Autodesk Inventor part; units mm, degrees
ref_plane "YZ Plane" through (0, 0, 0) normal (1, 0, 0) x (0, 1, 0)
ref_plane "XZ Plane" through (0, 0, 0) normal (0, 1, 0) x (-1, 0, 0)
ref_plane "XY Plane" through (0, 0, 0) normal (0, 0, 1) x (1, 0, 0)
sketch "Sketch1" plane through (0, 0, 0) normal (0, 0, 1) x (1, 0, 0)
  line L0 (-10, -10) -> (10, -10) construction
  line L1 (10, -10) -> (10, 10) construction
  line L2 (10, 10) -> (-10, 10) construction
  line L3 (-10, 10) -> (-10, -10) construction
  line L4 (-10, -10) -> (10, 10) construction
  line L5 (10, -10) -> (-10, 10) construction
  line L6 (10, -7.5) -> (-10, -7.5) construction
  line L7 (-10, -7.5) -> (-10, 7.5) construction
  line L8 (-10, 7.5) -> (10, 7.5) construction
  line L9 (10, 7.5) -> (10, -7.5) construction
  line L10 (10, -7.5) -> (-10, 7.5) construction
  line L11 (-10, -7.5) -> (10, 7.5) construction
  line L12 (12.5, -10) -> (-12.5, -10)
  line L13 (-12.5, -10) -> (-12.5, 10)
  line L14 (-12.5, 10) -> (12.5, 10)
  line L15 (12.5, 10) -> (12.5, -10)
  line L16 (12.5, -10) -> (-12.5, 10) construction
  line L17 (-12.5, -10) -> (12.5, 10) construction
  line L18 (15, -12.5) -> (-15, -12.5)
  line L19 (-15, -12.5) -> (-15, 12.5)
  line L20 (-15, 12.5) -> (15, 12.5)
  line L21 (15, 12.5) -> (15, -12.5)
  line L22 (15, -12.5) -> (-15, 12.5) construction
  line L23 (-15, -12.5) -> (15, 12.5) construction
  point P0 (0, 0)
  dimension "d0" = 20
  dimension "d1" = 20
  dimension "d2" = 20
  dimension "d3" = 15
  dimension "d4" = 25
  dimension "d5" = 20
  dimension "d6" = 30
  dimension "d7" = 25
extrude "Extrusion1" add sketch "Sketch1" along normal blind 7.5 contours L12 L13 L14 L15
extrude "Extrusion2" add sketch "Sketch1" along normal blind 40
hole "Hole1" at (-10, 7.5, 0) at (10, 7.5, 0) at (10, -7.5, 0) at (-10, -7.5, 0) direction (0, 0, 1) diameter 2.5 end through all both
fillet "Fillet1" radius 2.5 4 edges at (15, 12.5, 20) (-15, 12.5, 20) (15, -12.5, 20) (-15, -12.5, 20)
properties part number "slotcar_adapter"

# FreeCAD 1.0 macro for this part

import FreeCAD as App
import Part
import Sketcher


def edges_at(feature, points):
    """Names of the edges that pass closest to the given points."""
    edges = feature.Shape.Edges
    near = lambda p: min(range(len(edges)), key=lambda i: edges[i].distToShape(Part.Vertex(*p))[0])
    return sorted({f"Edge{near(p) + 1}" for p in points})

doc = App.newDocument("Part")
params = doc.addObject("Spreadsheet::Sheet", "Params")
for row, (alias, value) in enumerate([
    ("sketch1_width", "25 mm"),
    ("sketch1_height", "20 mm"),
    ("pad1_length", "7.5 mm"),
    ("sketch2_width", "30 mm"),
    ("sketch2_width2", "25 mm"),
    ("sketch2_height", "20 mm"),
    ("pad2_length", "40 mm"),
    ("sketch3_diameter", "2.5 mm"),
    ("hole_diameter", "2.5 mm"),
    ("fillet_radius", "2.5 mm"),
], start=1):
    params.set(f"A{row}", alias)
    params.set(f"B{row}", "=" + value)
    params.setAlias(f"B{row}", alias)

body = doc.addObject("PartDesign::Body", "Body")

sketch1 = body.newObject("Sketcher::SketchObject", "Sketch")
sketch1.AttachmentSupport = (doc.getObject("XY_Plane"), [""])
sketch1.MapMode = "FlatFace"
sketch1.addGeometry(Part.LineSegment(App.Vector(-12, -10, 0), App.Vector(12, -10, 0)), False)
sketch1.addGeometry(Part.LineSegment(App.Vector(12, -10, 0), App.Vector(12, 10, 0)), False)
sketch1.addGeometry(Part.LineSegment(App.Vector(12, 10, 0), App.Vector(-12, 10, 0)), False)
sketch1.addGeometry(Part.LineSegment(App.Vector(-12, 10, 0), App.Vector(-12, -10, 0)), False)
sketch1.addConstraint(Sketcher.Constraint("Coincident", 0, 2, 1, 1))
sketch1.addConstraint(Sketcher.Constraint("Coincident", 1, 2, 2, 1))
sketch1.addConstraint(Sketcher.Constraint("Coincident", 2, 2, 3, 1))
sketch1.addConstraint(Sketcher.Constraint("Coincident", 3, 2, 0, 1))
sketch1.addConstraint(Sketcher.Constraint("Horizontal", 0))
sketch1.addConstraint(Sketcher.Constraint("Vertical", 1))
sketch1.addConstraint(Sketcher.Constraint("Horizontal", 2))
sketch1.addConstraint(Sketcher.Constraint("Vertical", 3))
sketch1.addConstraint(Sketcher.Constraint("Symmetric", 0, 2, 2, 2, -1, 1))
sketch1.addConstraint(Sketcher.Constraint("DistanceX", 0, 1, 0, 2, 25.0))
sketch1.addConstraint(Sketcher.Constraint("DistanceY", 1, 1, 1, 2, 20.0))
sketch1.setExpression("Constraints[9]", "Params.sketch1_width")
sketch1.setExpression("Constraints[10]", "Params.sketch1_height")
pad1 = body.newObject("PartDesign::Pad", "Pad")
pad1.Profile = sketch1
pad1.setExpression("Length", "Params.pad1_length")

sketch2 = body.newObject("Sketcher::SketchObject", "Sketch001")
sketch2.AttachmentSupport = (doc.getObject("XY_Plane"), [""])
sketch2.MapMode = "FlatFace"
sketch2.addGeometry(Part.LineSegment(App.Vector(-15, -12, 0), App.Vector(15, -12, 0)), False)
sketch2.addGeometry(Part.LineSegment(App.Vector(15, -12, 0), App.Vector(15, 12, 0)), False)
sketch2.addGeometry(Part.LineSegment(App.Vector(15, 12, 0), App.Vector(-15, 12, 0)), False)
sketch2.addGeometry(Part.LineSegment(App.Vector(-15, 12, 0), App.Vector(-15, -12, 0)), False)
sketch2.addGeometry(Part.LineSegment(App.Vector(12, 10, 0), App.Vector(12, -10, 0)), False)
sketch2.addGeometry(Part.LineSegment(App.Vector(12, -10, 0), App.Vector(-12, -10, 0)), False)
sketch2.addGeometry(Part.LineSegment(App.Vector(-12, -10, 0), App.Vector(-12, 10, 0)), False)
sketch2.addGeometry(Part.LineSegment(App.Vector(-12, 10, 0), App.Vector(12, 10, 0)), False)
sketch2.addConstraint(Sketcher.Constraint("Coincident", 0, 2, 1, 1))
sketch2.addConstraint(Sketcher.Constraint("Coincident", 1, 2, 2, 1))
sketch2.addConstraint(Sketcher.Constraint("Coincident", 2, 2, 3, 1))
sketch2.addConstraint(Sketcher.Constraint("Coincident", 3, 2, 0, 1))
sketch2.addConstraint(Sketcher.Constraint("Coincident", 4, 2, 5, 1))
sketch2.addConstraint(Sketcher.Constraint("Coincident", 5, 2, 6, 1))
sketch2.addConstraint(Sketcher.Constraint("Coincident", 6, 2, 7, 1))
sketch2.addConstraint(Sketcher.Constraint("Coincident", 7, 2, 4, 1))
sketch2.addConstraint(Sketcher.Constraint("Horizontal", 0))
sketch2.addConstraint(Sketcher.Constraint("Vertical", 1))
sketch2.addConstraint(Sketcher.Constraint("Horizontal", 2))
sketch2.addConstraint(Sketcher.Constraint("Vertical", 3))
sketch2.addConstraint(Sketcher.Constraint("Vertical", 4))
sketch2.addConstraint(Sketcher.Constraint("Horizontal", 5))
sketch2.addConstraint(Sketcher.Constraint("Vertical", 6))
sketch2.addConstraint(Sketcher.Constraint("Horizontal", 7))
sketch2.addConstraint(Sketcher.Constraint("Symmetric", 0, 2, 2, 2, -1, 1))
sketch2.addConstraint(Sketcher.Constraint("Symmetric", 4, 2, 6, 2, -1, 1))
sketch2.addConstraint(Sketcher.Constraint("Equal", 7, 1))
sketch2.addConstraint(Sketcher.Constraint("DistanceX", 0, 1, 0, 2, 30.0))
sketch2.addConstraint(Sketcher.Constraint("DistanceX", 5, 2, 5, 1, 25.0))
sketch2.addConstraint(Sketcher.Constraint("DistanceY", 4, 2, 4, 1, 20.0))
sketch2.setExpression("Constraints[19]", "Params.sketch2_width")
sketch2.setExpression("Constraints[20]", "Params.sketch2_width2")
sketch2.setExpression("Constraints[21]", "Params.sketch2_height")
pad2 = body.newObject("PartDesign::Pad", "Pad001")
pad2.Profile = sketch2
pad2.setExpression("Length", "Params.pad2_length")

sketch3 = body.newObject("Sketcher::SketchObject", "Sketch002")
sketch3.AttachmentSupport = (doc.getObject("XY_Plane"), [""])
sketch3.MapMode = "FlatFace"
sketch3.addGeometry(Part.Circle(App.Vector(-10, 7.5, 0), App.Vector(0, 0, 1), 1.2), False)
sketch3.addGeometry(Part.Circle(App.Vector(10, 7.5, 0), App.Vector(0, 0, 1), 1.2), False)
sketch3.addGeometry(Part.Circle(App.Vector(10, -7.5, 0), App.Vector(0, 0, 1), 1.2), False)
sketch3.addGeometry(Part.Circle(App.Vector(-10, -7.5, 0), App.Vector(0, 0, 1), 1.2), False)
sketch3.addConstraint(Sketcher.Constraint("Equal", 0, 1))
sketch3.addConstraint(Sketcher.Constraint("Equal", 1, 2))
sketch3.addConstraint(Sketcher.Constraint("Equal", 2, 3))
sketch3.addConstraint(Sketcher.Constraint("Symmetric", 0, 3, 2, 3, -1, 1))
sketch3.addConstraint(Sketcher.Constraint("Symmetric", 1, 3, 3, 3, -1, 1))
sketch3.addConstraint(Sketcher.Constraint("Symmetric", 0, 3, 1, 3, -2))
sketch3.addConstraint(Sketcher.Constraint("Diameter", 0, 2.5))
sketch3.addConstraint(Sketcher.Constraint("DistanceX", 0, 3, -1, 1, 10.0))
sketch3.addConstraint(Sketcher.Constraint("DistanceY", 2, 3, 1, 3, 15.0))
sketch3.setExpression("Constraints[6]", "Params.sketch3_diameter")
doc.recompute()
hole = body.newObject("PartDesign::Hole", "Hole")
hole.Profile = sketch3
hole.ThreadType = "None"
hole.setExpression("Diameter", "Params.hole_diameter")
hole.DepthType = "ThroughAll"
hole.Reversed = True
doc.recompute()

fillet = body.newObject("PartDesign::Fillet", "Fillet")
fillet.Base = (hole, edges_at(hole, [
    (15, 12.5, 20),
    (-15, 12.5, 20),
    (15, -12.5, 20),
    (-15, -12.5, 20),
]))
fillet.setExpression("Radius", "Params.fillet_radius")

doc.recompute()
